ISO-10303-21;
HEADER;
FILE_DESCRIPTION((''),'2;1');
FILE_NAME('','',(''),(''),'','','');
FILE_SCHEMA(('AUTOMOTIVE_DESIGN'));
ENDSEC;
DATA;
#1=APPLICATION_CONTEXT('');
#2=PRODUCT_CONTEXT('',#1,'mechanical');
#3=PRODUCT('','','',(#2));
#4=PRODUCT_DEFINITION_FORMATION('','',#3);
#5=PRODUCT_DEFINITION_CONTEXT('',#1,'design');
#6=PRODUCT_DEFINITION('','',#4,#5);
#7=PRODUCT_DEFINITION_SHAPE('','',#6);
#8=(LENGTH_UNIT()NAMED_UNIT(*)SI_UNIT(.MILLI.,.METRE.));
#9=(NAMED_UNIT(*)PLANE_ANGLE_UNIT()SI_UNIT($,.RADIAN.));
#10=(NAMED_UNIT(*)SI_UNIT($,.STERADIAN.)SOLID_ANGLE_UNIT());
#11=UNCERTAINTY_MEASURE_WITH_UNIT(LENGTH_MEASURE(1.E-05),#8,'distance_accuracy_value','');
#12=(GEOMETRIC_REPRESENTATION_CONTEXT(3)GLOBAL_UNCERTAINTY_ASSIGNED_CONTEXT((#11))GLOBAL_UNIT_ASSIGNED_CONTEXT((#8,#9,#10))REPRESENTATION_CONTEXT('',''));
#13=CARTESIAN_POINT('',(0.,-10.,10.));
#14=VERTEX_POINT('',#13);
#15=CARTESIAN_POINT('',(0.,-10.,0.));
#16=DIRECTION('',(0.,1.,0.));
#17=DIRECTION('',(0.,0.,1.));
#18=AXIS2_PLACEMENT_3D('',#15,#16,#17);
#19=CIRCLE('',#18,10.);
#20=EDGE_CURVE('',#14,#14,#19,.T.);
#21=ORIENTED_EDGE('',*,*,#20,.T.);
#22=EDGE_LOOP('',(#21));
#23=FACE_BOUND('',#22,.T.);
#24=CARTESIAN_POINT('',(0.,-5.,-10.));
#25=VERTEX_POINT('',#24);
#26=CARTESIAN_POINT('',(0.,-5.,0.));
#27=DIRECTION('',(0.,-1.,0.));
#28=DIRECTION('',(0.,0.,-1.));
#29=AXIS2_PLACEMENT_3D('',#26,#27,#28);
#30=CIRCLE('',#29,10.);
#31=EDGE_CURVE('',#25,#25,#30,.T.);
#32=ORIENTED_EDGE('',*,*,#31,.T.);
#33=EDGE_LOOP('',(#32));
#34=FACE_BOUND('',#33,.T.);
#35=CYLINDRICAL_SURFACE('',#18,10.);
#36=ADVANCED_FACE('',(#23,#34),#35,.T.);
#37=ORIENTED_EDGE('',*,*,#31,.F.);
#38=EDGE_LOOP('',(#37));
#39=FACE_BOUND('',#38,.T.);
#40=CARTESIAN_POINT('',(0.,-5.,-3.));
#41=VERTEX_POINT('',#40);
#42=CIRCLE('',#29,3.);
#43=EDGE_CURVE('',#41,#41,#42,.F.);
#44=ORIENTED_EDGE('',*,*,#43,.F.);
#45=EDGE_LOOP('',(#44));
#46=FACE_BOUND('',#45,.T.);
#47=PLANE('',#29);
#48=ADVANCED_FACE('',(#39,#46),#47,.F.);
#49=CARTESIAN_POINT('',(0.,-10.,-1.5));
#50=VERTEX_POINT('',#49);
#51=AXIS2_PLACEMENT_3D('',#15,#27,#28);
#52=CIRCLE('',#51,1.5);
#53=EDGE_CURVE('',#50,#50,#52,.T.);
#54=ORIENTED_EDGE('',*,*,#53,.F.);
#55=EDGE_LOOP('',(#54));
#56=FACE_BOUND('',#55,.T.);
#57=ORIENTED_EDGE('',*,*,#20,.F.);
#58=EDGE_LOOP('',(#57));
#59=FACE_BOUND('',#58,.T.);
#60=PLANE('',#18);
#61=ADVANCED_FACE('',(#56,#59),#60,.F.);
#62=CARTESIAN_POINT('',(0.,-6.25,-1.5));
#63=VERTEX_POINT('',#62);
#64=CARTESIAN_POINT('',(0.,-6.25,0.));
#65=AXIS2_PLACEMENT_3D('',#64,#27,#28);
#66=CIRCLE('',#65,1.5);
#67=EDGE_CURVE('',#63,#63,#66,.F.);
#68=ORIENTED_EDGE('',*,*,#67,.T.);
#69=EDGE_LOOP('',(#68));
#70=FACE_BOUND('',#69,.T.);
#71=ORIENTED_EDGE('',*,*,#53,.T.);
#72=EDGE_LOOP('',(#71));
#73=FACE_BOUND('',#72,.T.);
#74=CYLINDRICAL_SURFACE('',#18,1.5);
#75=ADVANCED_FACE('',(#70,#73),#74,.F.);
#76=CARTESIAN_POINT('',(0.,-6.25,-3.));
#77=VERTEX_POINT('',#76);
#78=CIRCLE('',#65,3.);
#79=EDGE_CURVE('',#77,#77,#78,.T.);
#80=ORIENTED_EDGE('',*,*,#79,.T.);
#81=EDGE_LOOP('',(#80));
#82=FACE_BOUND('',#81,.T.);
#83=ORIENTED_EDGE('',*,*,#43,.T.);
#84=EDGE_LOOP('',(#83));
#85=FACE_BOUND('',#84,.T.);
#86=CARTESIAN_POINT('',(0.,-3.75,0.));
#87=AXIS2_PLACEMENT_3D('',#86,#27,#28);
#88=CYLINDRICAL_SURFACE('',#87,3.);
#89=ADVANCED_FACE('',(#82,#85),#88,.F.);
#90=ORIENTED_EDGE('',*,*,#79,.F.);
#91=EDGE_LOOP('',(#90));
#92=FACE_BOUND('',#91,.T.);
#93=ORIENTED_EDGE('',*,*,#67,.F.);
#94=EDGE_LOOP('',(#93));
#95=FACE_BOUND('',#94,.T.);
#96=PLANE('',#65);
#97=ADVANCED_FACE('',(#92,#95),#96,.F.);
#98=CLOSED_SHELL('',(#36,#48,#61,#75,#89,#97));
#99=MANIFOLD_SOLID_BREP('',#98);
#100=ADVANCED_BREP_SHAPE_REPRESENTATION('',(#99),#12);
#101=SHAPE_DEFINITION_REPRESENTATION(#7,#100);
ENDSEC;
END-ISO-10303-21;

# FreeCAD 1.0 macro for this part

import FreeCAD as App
import Part
import Sketcher
from FreeCAD import Vector

doc = App.newDocument("Part")
body = doc.addObject("PartDesign::Body", "Body")

# Sketch on XZ plane
sketch1 = body.newObject("Sketcher::SketchObject", "Sketch")
sketch1.AttachmentSupport = (doc.getObject("XZ_Plane"), [""])
sketch1.MapMode = "FlatFace"
sketch1.addGeometry(Part.Circle(Vector(0, 0, 0), Vector(0, 0, 1), 10), False)
sketch1.addConstraint([
    Sketcher.Constraint("Coincident", 0, 3, -1, 1),
    Sketcher.Constraint("Diameter", 0, 20.0),
])
pad1 = body.newObject("PartDesign::Pad", "Pad")
pad1.Profile = sketch1
pad1.Type = "TwoLengths"
pad1.Length = 3
pad1.Length2 = 10
pad1.Reversed = True

# Sketch on an angled plane
sketch2 = body.newObject("Sketcher::SketchObject", "Sketch001")
sketch2.Placement = App.Placement(Vector(-3.352872, -1.093066, 1.887712), App.Rotation(Vector(-0.448686261, -0.14627571, -0.881637145), Vector(-0.309953511, 0.950751713, 0), Vector(0.838218026, 0.273266529, -0.471927902), "ZXY"))
sketch2.addGeometry(Part.Circle(Vector(0, 0, 0), Vector(0, 0, 1), 1.5), False)
sketch2.addConstraint([
    Sketcher.Constraint("Coincident", 0, 3, -1, 1),
    Sketcher.Constraint("Diameter", 0, 3.0),
])
pocket1 = body.newObject("PartDesign::Pocket", "Pocket")
pocket1.Profile = sketch2
pocket1.Type = "ThroughAll"
doc.recompute()

polarpattern = body.newObject("PartDesign::PolarPattern", "PolarPattern")
polarpattern.Originals = [pocket1]
polarpattern.Axis = (doc.getObject("Y_Axis"), [""])
polarpattern.Angle = 360
polarpattern.Occurrences = 5
body.Tip = polarpattern

# Sketch on XZ plane
sketch3 = body.newObject("Sketcher::SketchObject", "Sketch002")
sketch3.AttachmentSupport = (doc.getObject("XZ_Plane"), [""])
sketch3.MapMode = "FlatFace"
sketch3.AttachmentOffset = App.Placement(Vector(0, 0, 5), App.Rotation())
sketch3.addGeometry(Part.Circle(Vector(0, 0, 0), Vector(0, 0, 1), 3), False)
sketch3.addConstraint([
    Sketcher.Constraint("Coincident", 0, 3, -1, 1),
    Sketcher.Constraint("Diameter", 0, 6.0),
])
pocket2 = body.newObject("PartDesign::Pocket", "Pocket001")
pocket2.Profile = sketch3
pocket2.Length = 2.5
pocket2.Midplane = True

# Sketch on XZ plane
sketch4 = body.newObject("Sketcher::SketchObject", "Sketch003")
sketch4.AttachmentSupport = (doc.getObject("XZ_Plane"), [""])
sketch4.MapMode = "FlatFace"
sketch4.AttachmentOffset = App.Placement(Vector(0, 0, 5), App.Rotation())
sketch4.addGeometry(Part.Circle(Vector(0, 0, 0), Vector(0, 0, 1), 1.5), False)
sketch4.addConstraint([
    Sketcher.Constraint("Coincident", 0, 3, -1, 1),
    Sketcher.Constraint("Diameter", 0, 3.0),
])
pocket3 = body.newObject("PartDesign::Pocket", "Pocket002")
pocket3.Profile = sketch4
pocket3.Type = "ThroughAll"
pocket3.Reversed = True

# Sketch on XZ plane
sketch5 = body.newObject("Sketcher::SketchObject", "Sketch004")
sketch5.AttachmentSupport = (doc.getObject("XZ_Plane"), [""])
sketch5.MapMode = "FlatFace"
sketch5.AttachmentOffset = App.Placement(Vector(0, 0, 5), App.Rotation())
sketch5.addGeometry(Part.Circle(Vector(0, 0, 0), Vector(0, 0, 1), 10), False)
sketch5.addConstraint([
    Sketcher.Constraint("Coincident", 0, 3, -1, 1),
    Sketcher.Constraint("Diameter", 0, 20.0),
])
pocket4 = body.newObject("PartDesign::Pocket", "Pocket003")
pocket4.Profile = sketch5
pocket4.Length = 10

doc.recompute()
